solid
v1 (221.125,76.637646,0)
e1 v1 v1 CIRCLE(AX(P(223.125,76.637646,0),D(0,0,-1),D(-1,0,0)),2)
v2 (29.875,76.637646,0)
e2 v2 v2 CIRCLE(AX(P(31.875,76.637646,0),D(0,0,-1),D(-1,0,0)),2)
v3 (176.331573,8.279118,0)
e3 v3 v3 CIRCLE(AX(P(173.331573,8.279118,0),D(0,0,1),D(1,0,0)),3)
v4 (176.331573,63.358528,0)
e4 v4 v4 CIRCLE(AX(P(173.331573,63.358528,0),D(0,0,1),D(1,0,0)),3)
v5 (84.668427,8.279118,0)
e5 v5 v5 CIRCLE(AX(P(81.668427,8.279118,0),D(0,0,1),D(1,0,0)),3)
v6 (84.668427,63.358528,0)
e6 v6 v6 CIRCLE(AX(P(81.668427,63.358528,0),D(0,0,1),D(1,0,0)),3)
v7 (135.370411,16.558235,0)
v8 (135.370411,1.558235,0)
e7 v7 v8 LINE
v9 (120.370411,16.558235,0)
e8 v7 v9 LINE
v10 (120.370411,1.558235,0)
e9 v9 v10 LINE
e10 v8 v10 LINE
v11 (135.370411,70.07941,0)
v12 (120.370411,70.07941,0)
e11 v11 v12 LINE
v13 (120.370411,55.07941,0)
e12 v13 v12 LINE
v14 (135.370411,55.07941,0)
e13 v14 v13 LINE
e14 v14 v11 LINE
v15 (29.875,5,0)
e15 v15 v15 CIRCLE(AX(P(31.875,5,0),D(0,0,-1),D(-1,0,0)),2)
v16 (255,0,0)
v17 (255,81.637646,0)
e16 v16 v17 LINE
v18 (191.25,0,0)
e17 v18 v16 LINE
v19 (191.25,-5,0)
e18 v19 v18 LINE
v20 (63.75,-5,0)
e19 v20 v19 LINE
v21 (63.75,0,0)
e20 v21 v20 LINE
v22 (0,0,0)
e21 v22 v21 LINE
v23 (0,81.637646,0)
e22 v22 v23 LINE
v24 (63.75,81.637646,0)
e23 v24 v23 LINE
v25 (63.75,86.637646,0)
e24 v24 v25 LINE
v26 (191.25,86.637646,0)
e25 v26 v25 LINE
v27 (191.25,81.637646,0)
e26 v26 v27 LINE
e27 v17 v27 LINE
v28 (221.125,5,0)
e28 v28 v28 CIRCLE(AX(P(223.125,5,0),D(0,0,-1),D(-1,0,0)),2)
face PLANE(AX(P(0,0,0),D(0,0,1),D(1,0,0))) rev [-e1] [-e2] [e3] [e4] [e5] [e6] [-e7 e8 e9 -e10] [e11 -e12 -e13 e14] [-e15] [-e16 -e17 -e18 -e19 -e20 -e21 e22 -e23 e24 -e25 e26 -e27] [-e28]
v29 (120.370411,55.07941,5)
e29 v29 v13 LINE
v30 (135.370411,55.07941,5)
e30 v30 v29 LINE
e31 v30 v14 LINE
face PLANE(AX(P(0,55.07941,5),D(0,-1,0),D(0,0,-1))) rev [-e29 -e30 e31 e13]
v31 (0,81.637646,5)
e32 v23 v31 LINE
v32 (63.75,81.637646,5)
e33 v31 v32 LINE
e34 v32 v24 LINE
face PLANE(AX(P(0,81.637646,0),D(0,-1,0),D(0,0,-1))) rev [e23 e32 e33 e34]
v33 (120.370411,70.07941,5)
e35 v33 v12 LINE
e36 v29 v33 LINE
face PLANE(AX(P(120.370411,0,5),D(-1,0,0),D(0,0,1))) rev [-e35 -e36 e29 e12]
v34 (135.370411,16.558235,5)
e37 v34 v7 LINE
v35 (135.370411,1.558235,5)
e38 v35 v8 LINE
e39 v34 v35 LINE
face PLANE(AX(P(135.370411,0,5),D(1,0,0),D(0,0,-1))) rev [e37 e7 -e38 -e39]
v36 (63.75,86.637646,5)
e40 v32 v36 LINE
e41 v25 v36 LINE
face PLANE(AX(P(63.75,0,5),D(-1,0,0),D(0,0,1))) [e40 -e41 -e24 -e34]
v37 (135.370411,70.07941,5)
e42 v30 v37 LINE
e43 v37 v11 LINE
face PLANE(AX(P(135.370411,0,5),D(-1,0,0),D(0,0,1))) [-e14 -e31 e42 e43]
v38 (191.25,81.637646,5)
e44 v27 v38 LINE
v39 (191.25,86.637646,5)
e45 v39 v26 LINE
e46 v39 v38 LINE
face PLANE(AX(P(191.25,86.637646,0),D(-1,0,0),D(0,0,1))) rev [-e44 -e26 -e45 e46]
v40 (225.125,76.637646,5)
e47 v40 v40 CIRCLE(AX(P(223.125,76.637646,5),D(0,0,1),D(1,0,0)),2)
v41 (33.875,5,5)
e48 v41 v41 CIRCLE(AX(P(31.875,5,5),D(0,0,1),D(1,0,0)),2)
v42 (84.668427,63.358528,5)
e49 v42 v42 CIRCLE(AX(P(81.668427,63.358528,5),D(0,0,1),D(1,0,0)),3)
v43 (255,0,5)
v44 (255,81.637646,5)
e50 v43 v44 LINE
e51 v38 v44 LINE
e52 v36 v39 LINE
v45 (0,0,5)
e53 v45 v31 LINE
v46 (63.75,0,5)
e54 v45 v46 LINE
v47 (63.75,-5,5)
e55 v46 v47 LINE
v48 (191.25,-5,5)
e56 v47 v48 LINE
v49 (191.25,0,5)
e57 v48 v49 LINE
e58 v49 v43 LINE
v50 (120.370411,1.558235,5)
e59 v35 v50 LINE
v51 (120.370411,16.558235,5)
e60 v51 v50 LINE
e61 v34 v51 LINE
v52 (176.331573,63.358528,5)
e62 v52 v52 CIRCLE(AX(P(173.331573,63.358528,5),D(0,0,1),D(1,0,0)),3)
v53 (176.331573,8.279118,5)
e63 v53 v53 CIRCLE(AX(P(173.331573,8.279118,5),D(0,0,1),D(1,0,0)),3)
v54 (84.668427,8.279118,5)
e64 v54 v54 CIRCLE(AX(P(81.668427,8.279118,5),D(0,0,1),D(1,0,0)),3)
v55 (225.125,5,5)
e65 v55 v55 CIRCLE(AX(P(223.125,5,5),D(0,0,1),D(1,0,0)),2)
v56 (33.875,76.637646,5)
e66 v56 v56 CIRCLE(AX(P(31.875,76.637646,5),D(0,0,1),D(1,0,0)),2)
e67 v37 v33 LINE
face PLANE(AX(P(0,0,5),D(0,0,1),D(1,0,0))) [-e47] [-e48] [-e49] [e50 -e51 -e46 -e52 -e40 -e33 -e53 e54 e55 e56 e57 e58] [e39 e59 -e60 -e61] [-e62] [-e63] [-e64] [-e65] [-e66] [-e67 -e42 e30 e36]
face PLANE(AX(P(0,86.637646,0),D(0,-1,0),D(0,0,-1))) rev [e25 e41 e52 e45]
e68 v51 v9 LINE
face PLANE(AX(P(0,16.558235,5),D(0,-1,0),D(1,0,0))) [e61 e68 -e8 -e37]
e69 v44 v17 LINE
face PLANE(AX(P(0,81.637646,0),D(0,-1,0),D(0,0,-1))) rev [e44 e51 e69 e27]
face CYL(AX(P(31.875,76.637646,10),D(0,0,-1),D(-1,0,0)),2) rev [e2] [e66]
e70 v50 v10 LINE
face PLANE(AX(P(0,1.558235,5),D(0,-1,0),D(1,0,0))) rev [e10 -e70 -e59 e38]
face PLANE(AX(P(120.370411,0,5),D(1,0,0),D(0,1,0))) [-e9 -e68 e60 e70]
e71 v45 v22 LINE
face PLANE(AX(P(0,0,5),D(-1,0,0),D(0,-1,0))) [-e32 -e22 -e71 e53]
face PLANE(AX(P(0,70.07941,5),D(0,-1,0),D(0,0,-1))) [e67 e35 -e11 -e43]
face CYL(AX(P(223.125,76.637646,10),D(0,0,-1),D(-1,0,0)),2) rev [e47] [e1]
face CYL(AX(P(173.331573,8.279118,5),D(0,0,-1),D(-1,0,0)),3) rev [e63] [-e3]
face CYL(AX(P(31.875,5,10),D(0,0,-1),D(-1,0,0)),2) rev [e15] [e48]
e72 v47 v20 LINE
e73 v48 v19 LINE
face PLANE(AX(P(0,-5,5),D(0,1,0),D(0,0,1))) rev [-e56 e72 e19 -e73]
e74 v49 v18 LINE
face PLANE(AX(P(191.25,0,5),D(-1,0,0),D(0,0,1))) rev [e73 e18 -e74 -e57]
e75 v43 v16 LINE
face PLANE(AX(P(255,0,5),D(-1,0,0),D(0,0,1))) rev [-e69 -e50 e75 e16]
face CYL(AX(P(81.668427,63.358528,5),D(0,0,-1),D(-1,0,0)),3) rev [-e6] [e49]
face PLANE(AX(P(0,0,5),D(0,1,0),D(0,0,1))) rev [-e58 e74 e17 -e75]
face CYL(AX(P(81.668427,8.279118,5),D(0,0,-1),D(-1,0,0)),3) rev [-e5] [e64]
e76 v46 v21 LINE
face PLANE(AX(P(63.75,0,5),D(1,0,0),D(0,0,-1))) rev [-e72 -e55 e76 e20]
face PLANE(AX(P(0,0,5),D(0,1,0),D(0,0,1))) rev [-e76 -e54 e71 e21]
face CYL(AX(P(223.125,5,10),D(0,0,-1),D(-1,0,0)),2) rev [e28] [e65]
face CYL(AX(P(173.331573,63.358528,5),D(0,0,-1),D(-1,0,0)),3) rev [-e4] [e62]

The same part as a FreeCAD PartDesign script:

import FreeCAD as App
import Part
import Sketcher

V = App.Vector
Q = App.Units.Quantity


def add_polygon(sketch, points):
    """Adds a closed chain of lines whose ends are joined by coincident constraints."""
    first, n = sketch.GeometryCount, len(points)
    for a, b in zip(points, points[1:] + points[:1]):
        sketch.addGeometry(Part.LineSegment(App.Vector(*a, 0), App.Vector(*b, 0)), False)
    for i in range(n):
        sketch.addConstraint(Sketcher.Constraint("Coincident", first + i, 2, first + (i + 1) % n, 1))

doc = App.newDocument("Part")
body = doc.addObject("PartDesign::Body", "Body")

sketch1 = doc.addObject("Sketcher::SketchObject", "Sketch")
body.addObject(sketch1)
sketch1.AttachmentSupport = (doc.XY_Plane, [""])
sketch1.MapMode = "FlatFace"
add_polygon(sketch1, [(255, 71.6), (191.2, 71.6), (191.2, 76.6), (63.8, 76.6), (63.8, 71.6), (0, 71.6), (0, 0), (63.8, 0), (63.8, -5), (191.2, -5), (191.2, 0), (255, 0)])
sketch1.addGeometry(Part.Circle(V(173.3, 8.3, 0), V(0, 0, 1), 3), False)
add_polygon(sketch1, [(120.4, 1.6), (120.4, 16.6), (135.4, 16.6), (135.4, 1.6)])
sketch1.addGeometry(Part.Circle(V(81.7, 8.3, 0), V(0, 0, 1), 3), False)
sketch1.addGeometry(Part.Circle(V(173.3, 63.4, 0), V(0, 0, 1), 3), False)
add_polygon(sketch1, [(120.4, 55.1), (120.4, 70.1), (135.4, 70.1), (135.4, 55.1)])
sketch1.addGeometry(Part.Circle(V(81.7, 63.4, 0), V(0, 0, 1), 3), False)
sketch1.addConstraint([
    Sketcher.Constraint("Horizontal", 0),
    Sketcher.Constraint("Vertical", 1),
    Sketcher.Constraint("Horizontal", 2),
    Sketcher.Constraint("Vertical", 3),
    Sketcher.Constraint("Horizontal", 4),
    Sketcher.Constraint("Vertical", 5),
    Sketcher.Constraint("Horizontal", 6),
    Sketcher.Constraint("Vertical", 7),
    Sketcher.Constraint("Horizontal", 8),
    Sketcher.Constraint("Vertical", 9),
    Sketcher.Constraint("Horizontal", 10),
    Sketcher.Constraint("Vertical", 11),
    Sketcher.Constraint("Vertical", 13),
    Sketcher.Constraint("Horizontal", 14),
    Sketcher.Constraint("Vertical", 15),
    Sketcher.Constraint("Horizontal", 16),
    Sketcher.Constraint("Vertical", 19),
    Sketcher.Constraint("Horizontal", 20),
    Sketcher.Constraint("Vertical", 21),
    Sketcher.Constraint("Horizontal", 22),
    Sketcher.Constraint("Coincident", 5, 2, -1, 1),
    Sketcher.Constraint("Equal", 12, 17),
    Sketcher.Constraint("Equal", 17, 18),
    Sketcher.Constraint("Equal", 18, 23),
    Sketcher.Constraint("PointOnObject", 9, 2, -1),
    Sketcher.Constraint("Horizontal", 12, 3, 17, 3),
    Sketcher.Constraint("Horizontal", 18, 3, 23, 3),
    Sketcher.Constraint("Horizontal", 0, 2, 3, 2),
    Sketcher.Constraint("Vertical", 12, 3, 18, 3),
    Sketcher.Constraint("Vertical", 17, 3, 23, 3),
    Sketcher.Constraint("Vertical", 3, 2, 6, 2),
    Sketcher.Constraint("Vertical", 1, 2, 8, 2),
    Sketcher.Constraint("Vertical", 16, 2, 19, 2),
    Sketcher.Constraint("Vertical", 15, 2, 20, 2),
    Sketcher.Constraint("Equal", 0, 4),
    Sketcher.Constraint("Equal", 3, 7),
    Sketcher.Constraint("Equal", 22, 13),
    Sketcher.Constraint("Equal", 15, 19),
    Sketcher.Constraint("Diameter", 12, Q("6 mm")),
    Sketcher.Constraint("DistanceX", 14, 1, 14, 2, Q("15 mm")),
    Sketcher.Constraint("DistanceY", 1, 1, 1, 2, Q("5 mm")),
    Sketcher.Constraint("DistanceX", 2, 2, 2, 1, Q("127.5 mm")),
    Sketcher.Constraint("DistanceX", -1, 1, 10, 2, Q("255 mm")),
    Sketcher.Constraint("DistanceY", 5, 2, 5, 1, Q("71.637646 mm")),
    Sketcher.Constraint("DistanceX", -1, 1, 13, 2, Q("120.370411 mm")),
    Sketcher.Constraint("DistanceY", -1, 1, 19, 2, Q("70.07941 mm")),
    Sketcher.Constraint("DistanceY", 12, 3, 18, 3, Q("55.07941 mm")),
    Sketcher.Constraint("DistanceX", 13, 2, 12, 3, Q("52.961162 mm")),
    Sketcher.Constraint("DistanceY", -1, 1, 12, 3, Q("8.279118 mm")),
    Sketcher.Constraint("DistanceX", -1, 1, 17, 3, Q("81.668427 mm")),
    Sketcher.Constraint("DistanceY", -1, 1, 13, 2, Q("16.558235 mm")),
])
pad1 = doc.addObject("PartDesign::Pad", "Pad")
body.addObject(pad1)
pad1.Profile = sketch1
pad1.Length = 5

sketch2 = doc.addObject("Sketcher::SketchObject", "Sketch001")
body.addObject(sketch2)
sketch2.AttachmentSupport = (doc.XY_Plane, [""])
sketch2.MapMode = "FlatFace"
sketch2.addGeometry([
    Part.Circle(V(31.9, 5, 0), V(0, 0, 1), 1.5),
    Part.Circle(V(31.9, 66.6, 0), V(0, 0, 1), 1.5),
    Part.Circle(V(223.1, 66.6, 0), V(0, 0, 1), 1.5),
    Part.Circle(V(223.1, 5, 0), V(0, 0, 1), 1.5),
], False)
sketch2.addConstraint([
    Sketcher.Constraint("Equal", 0, 1),
    Sketcher.Constraint("Equal", 1, 2),
    Sketcher.Constraint("Equal", 2, 3),
    Sketcher.Constraint("Horizontal", 1, 3, 2, 3),
    Sketcher.Constraint("Horizontal", 0, 3, 3, 3),
    Sketcher.Constraint("Vertical", 0, 3, 1, 3),
    Sketcher.Constraint("Vertical", 2, 3, 3, 3),
    Sketcher.Constraint("Diameter", 0, Q("3 mm")),
    Sketcher.Constraint("DistanceY", -1, 1, 0, 3, Q("5 mm")),
    Sketcher.Constraint("DistanceX", 1, 3, 2, 3, Q("191.25 mm")),
    Sketcher.Constraint("DistanceX", -1, 1, 0, 3, Q("31.875 mm")),
    Sketcher.Constraint("DistanceY", -1, 1, 1, 3, Q("66.637646 mm")),
])
pocket1 = doc.addObject("PartDesign::Pocket", "Pocket")
body.addObject(pocket1)
pocket1.Profile = sketch2
pocket1.Length = 185
pocket1.Reversed = True

sketch3 = doc.addObject("Sketcher::SketchObject", "Sketch002")
body.addObject(sketch3)
sketch3.AttachmentSupport = (doc.XY_Plane, [""])
sketch3.MapMode = "FlatFace"
sketch3.addGeometry([
    Part.Circle(V(31.9, 5, 0), V(0, 0, 1), 2),
    Part.Circle(V(31.9, 66.6, 0), V(0, 0, 1), 2),
    Part.Circle(V(223.1, 5, 0), V(0, 0, 1), 2),
    Part.Circle(V(223.1, 66.6, 0), V(0, 0, 1), 2),
], False)
sketch3.addConstraint([
    Sketcher.Constraint("Equal", 0, 1),
    Sketcher.Constraint("Equal", 1, 2),
    Sketcher.Constraint("Equal", 2, 3),
    Sketcher.Constraint("Horizontal", 0, 3, 2, 3),
    Sketcher.Constraint("Horizontal", 1, 3, 3, 3),
    Sketcher.Constraint("Vertical", 0, 3, 1, 3),
    Sketcher.Constraint("Vertical", 2, 3, 3, 3),
    Sketcher.Constraint("Diameter", 0, Q("4 mm")),
    Sketcher.Constraint("DistanceY", -1, 1, 0, 3, Q("5 mm")),
    Sketcher.Constraint("DistanceX", 0, 3, 2, 3, Q("191.25 mm")),
    Sketcher.Constraint("DistanceX", -1, 1, 0, 3, Q("31.875 mm")),
    Sketcher.Constraint("DistanceY", -1, 1, 1, 3, Q("66.637646 mm")),
])
pocket2 = doc.addObject("PartDesign::Pocket", "Pocket001")
body.addObject(pocket2)
pocket2.Profile = sketch3
pocket2.Length = 10
pocket2.Reversed = True

sketch4 = doc.addObject("Sketcher::SketchObject", "Sketch003")
body.addObject(sketch4)
sketch4.AttachmentSupport = (doc.XZ_Plane, [""])
sketch4.MapMode = "FlatFace"
sketch4.AttachmentOffset = App.Placement(V(0, 0, -71.637646), App.Rotation())
add_polygon(sketch4, [(191, 0), (191, 5), (255, 5), (255, 0)])
sketch4.addConstraint([
    Sketcher.Constraint("Vertical", 0),
    Sketcher.Constraint("Horizontal", 1),
    Sketcher.Constraint("Vertical", 2),
    Sketcher.Constraint("Horizontal", 3),
    Sketcher.Constraint("PointOnObject", 2, 2, -1),
    Sketcher.Constraint("DistanceY", 0, 1, 0, 2, Q("5 mm")),
    Sketcher.Constraint("DistanceX", -1, 1, 1, 2, Q("255 mm")),
    Sketcher.Constraint("DistanceX", 1, 1, 1, 2, Q("63.75 mm")),
])
pad2 = doc.addObject("PartDesign::Pad", "Pad001")
body.addObject(pad2)
pad2.Profile = sketch4
pad2.Length = 10
pad2.Reversed = True

sketch5 = doc.addObject("Sketcher::SketchObject", "Sketch004")
body.addObject(sketch5)
sketch5.AttachmentSupport = (doc.XZ_Plane, [""])
sketch5.MapMode = "FlatFace"
sketch5.AttachmentOffset = App.Placement(V(0, 0, -76.637646), App.Rotation())
add_polygon(sketch5, [(64, 0), (64, 5), (191, 5), (191, 0)])
sketch5.addConstraint([
    Sketcher.Constraint("Vertical", 0),
    Sketcher.Constraint("Horizontal", 1),
    Sketcher.Constraint("Vertical", 2),
    Sketcher.Constraint("Horizontal", 3),
    Sketcher.Constraint("PointOnObject", 2, 2, -1),
    Sketcher.Constraint("DistanceY", 0, 1, 0, 2, Q("5 mm")),
    Sketcher.Constraint("DistanceX", 1, 1, 1, 2, Q("127.5 mm")),
    Sketcher.Constraint("DistanceX", -1, 1, 0, 2, Q("63.75 mm")),
])
pad3 = doc.addObject("PartDesign::Pad", "Pad002")
body.addObject(pad3)
pad3.Profile = sketch5
pad3.Length = 10
pad3.Reversed = True

sketch6 = doc.addObject("Sketcher::SketchObject", "Sketch005")
body.addObject(sketch6)
sketch6.AttachmentSupport = (doc.XZ_Plane, [""])
sketch6.MapMode = "FlatFace"
sketch6.AttachmentOffset = App.Placement(V(0, 0, -71.637646), App.Rotation())
add_polygon(sketch6, [(0, 0), (0, 5), (64, 5), (64, 0)])
sketch6.addConstraint([
    Sketcher.Constraint("Vertical", 0),
    Sketcher.Constraint("Horizontal", 1),
    Sketcher.Constraint("Vertical", 2),
    Sketcher.Constraint("Horizontal", 3),
    Sketcher.Constraint("Coincident", 3, 2, -1, 1),
    Sketcher.Constraint("DistanceY", 0, 1, 0, 2, Q("5 mm")),
    Sketcher.Constraint("DistanceX", 1, 1, 1, 2, Q("63.75 mm")),
])
pad4 = doc.addObject("PartDesign::Pad", "Pad003")
body.addObject(pad4)
pad4.Profile = sketch6
pad4.Length = 10
pad4.Reversed = True

sketch7 = doc.addObject("Sketcher::SketchObject", "Sketch006")
body.addObject(sketch7)
sketch7.AttachmentSupport = (doc.XY_Plane, [""])
sketch7.MapMode = "FlatFace"
sketch7.addGeometry([
    Part.Circle(V(31.9, 66.6, 0), V(0, 0, 1), 2),
    Part.Circle(V(31.9, 76.6, 0), V(0, 0, 1), 2),
    Part.Circle(V(223.1, 76.6, 0), V(0, 0, 1), 2),
    Part.Circle(V(223.1, 66.6, 0), V(0, 0, 1), 2),
], False)
sketch7.addConstraint([
    Sketcher.Constraint("Equal", 0, 1),
    Sketcher.Constraint("Equal", 1, 2),
    Sketcher.Constraint("Equal", 2, 3),
    Sketcher.Constraint("Horizontal", 1, 3, 2, 3),
    Sketcher.Constraint("Horizontal", 0, 3, 3, 3),
    Sketcher.Constraint("Vertical", 0, 3, 1, 3),
    Sketcher.Constraint("Vertical", 2, 3, 3, 3),
    Sketcher.Constraint("Diameter", 0, Q("4 mm")),
    Sketcher.Constraint("DistanceY", 0, 3, 1, 3, Q("10 mm")),
    Sketcher.Constraint("DistanceX", 1, 3, 2, 3, Q("191.25 mm")),
    Sketcher.Constraint("DistanceX", -1, 1, 0, 3, Q("31.875 mm")),
    Sketcher.Constraint("DistanceY", -1, 1, 0, 3, Q("66.637646 mm")),
])
pad5 = doc.addObject("PartDesign::Pad", "Pad004")
body.addObject(pad5)
pad5.Profile = sketch7
pad5.Length = 5

sketch8 = doc.addObject("Sketcher::SketchObject", "Sketch007")
body.addObject(sketch8)
sketch8.AttachmentSupport = (doc.XY_Plane, [""])
sketch8.MapMode = "FlatFace"
sketch8.addGeometry([
    Part.Circle(V(31.9, 76.6, 0), V(0, 0, 1), 2),
    Part.Circle(V(223.1, 76.6, 0), V(0, 0, 1), 2),
], False)
sketch8.addConstraint([
    Sketcher.Constraint("Equal", 0, 1),
    Sketcher.Constraint("Horizontal", 0, 3, 1, 3),
    Sketcher.Constraint("Diameter", 0, Q("4 mm")),
    Sketcher.Constraint("DistanceX", 0, 3, 1, 3, Q("191.25 mm")),
    Sketcher.Constraint("DistanceX", -1, 1, 0, 3, Q("31.875 mm")),
    Sketcher.Constraint("DistanceY", -1, 1, 0, 3, Q("76.637646 mm")),
])
pocket3 = doc.addObject("PartDesign::Pocket", "Pocket002")
body.addObject(pocket3)
pocket3.Profile = sketch8
pocket3.Length = 10
pocket3.Reversed = True

doc.recompute()
